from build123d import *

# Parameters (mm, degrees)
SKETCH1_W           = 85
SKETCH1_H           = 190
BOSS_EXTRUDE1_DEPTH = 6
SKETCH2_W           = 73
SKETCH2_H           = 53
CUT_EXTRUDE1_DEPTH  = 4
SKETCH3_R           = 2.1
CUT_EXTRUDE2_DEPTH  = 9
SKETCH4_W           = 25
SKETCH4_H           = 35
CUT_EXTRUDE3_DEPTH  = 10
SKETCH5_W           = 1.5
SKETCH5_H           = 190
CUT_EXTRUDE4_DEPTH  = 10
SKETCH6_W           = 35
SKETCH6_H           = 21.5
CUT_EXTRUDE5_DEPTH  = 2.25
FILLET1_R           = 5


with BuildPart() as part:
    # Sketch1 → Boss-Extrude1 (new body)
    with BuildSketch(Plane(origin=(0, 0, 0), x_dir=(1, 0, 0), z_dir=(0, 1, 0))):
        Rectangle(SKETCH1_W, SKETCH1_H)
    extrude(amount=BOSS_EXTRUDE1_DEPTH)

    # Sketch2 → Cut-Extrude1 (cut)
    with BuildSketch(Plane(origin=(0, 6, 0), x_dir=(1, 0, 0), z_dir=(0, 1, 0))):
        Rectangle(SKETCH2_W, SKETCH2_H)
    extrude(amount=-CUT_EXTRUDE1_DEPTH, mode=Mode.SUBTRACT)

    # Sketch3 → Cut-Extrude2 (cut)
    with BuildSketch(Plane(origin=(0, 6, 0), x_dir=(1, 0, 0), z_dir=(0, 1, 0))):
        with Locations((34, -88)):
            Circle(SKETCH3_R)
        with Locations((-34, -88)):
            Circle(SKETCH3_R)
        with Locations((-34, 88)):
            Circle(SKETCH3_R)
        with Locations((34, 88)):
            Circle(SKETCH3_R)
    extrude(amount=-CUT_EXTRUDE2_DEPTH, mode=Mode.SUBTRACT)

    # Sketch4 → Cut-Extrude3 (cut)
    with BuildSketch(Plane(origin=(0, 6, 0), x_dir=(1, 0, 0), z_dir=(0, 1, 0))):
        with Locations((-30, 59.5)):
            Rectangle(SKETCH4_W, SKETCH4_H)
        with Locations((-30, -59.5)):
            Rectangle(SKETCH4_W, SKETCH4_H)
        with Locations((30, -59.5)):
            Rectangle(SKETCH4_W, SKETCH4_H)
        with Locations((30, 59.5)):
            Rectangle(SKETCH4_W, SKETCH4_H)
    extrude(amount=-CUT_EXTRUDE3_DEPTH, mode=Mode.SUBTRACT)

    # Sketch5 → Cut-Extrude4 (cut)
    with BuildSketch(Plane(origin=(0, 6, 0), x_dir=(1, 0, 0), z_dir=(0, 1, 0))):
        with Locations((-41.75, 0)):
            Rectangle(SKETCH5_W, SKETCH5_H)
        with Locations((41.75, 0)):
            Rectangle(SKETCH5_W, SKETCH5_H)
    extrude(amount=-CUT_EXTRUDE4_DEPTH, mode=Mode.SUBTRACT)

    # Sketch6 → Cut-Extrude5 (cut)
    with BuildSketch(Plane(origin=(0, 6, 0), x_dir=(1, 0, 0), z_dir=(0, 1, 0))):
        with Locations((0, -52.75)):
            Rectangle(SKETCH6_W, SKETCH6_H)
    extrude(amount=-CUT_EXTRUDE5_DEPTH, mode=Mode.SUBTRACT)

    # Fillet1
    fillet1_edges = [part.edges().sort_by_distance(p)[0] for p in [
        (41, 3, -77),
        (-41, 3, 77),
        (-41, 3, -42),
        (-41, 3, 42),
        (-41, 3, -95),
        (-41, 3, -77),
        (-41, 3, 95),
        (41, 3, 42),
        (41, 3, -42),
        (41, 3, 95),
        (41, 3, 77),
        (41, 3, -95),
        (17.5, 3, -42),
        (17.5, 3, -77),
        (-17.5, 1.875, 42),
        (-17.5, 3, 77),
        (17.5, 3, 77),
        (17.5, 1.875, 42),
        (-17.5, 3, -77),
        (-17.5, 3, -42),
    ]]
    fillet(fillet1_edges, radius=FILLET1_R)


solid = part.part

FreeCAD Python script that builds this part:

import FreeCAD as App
import Part
import Sketcher


def edges_at(feature, points):
    """Names of the edges that pass closest to the given points."""
    edges = feature.Shape.Edges
    near = lambda p: min(range(len(edges)), key=lambda i: edges[i].distToShape(Part.Vertex(*p))[0])
    return sorted({f"Edge{near(p) + 1}" for p in points})

doc = App.newDocument("Part")
params = doc.addObject("Spreadsheet::Sheet", "Params")
for row, (alias, value) in enumerate([
    ("sketch1_width", "85 mm"),
    ("sketch1_height", "190 mm"),
    ("pad1_length", "6 mm"),
    ("sketch2_width", "73 mm"),
    ("sketch2_height", "53 mm"),
    ("pocket1_length", "4 mm"),
    ("sketch3_diameter", "4.2 mm"),
    ("pocket2_length", "9 mm"),
    ("sketch4_width", "25 mm"),
    ("sketch4_height", "35 mm"),
    ("pocket3_length", "10 mm"),
    ("sketch5_height", "190 mm"),
    ("sketch5_width", "1.5 mm"),
    ("pocket4_length", "10 mm"),
    ("sketch6_width", "35 mm"),
    ("sketch6_height", "21.5 mm"),
    ("pocket5_length", "2.25 mm"),
    ("fillet_radius", "5 mm"),
], start=1):
    params.set(f"A{row}", alias)
    params.set(f"B{row}", "=" + value)
    params.setAlias(f"B{row}", alias)

body = doc.addObject("PartDesign::Body", "Body")

sketch1 = body.newObject("Sketcher::SketchObject", "Sketch")
sketch1.AttachmentSupport = (doc.getObject("XZ_Plane"), [""])
sketch1.MapMode = "FlatFace"
sketch1.addGeometry([
    Part.LineSegment(App.Vector(-42, -95, 0), App.Vector(-42, 95, 0)),
    Part.LineSegment(App.Vector(-42, 95, 0), App.Vector(42, 95, 0)),
    Part.LineSegment(App.Vector(42, 95, 0), App.Vector(42, -95, 0)),
    Part.LineSegment(App.Vector(42, -95, 0), App.Vector(-42, -95, 0)),
], False)
sketch1.addConstraint([
    Sketcher.Constraint("Coincident", 0, 2, 1, 1),
    Sketcher.Constraint("Coincident", 1, 2, 2, 1),
    Sketcher.Constraint("Coincident", 2, 2, 3, 1),
    Sketcher.Constraint("Coincident", 3, 2, 0, 1),
    Sketcher.Constraint("Vertical", 0),
    Sketcher.Constraint("Horizontal", 1),
    Sketcher.Constraint("Vertical", 2),
    Sketcher.Constraint("Horizontal", 3),
    Sketcher.Constraint("Symmetric", 0, 2, 2, 2, -1, 1),
    Sketcher.Constraint("DistanceX", 1, 1, 1, 2, 85.0),
    Sketcher.Constraint("DistanceY", 0, 1, 0, 2, 190.0),
])
sketch1.setExpression("Constraints[9]", "Params.sketch1_width")
sketch1.setExpression("Constraints[10]", "Params.sketch1_height")
pad1 = body.newObject("PartDesign::Pad", "Pad")
pad1.Profile = sketch1
pad1.setExpression("Length", "Params.pad1_length")
pad1.Reversed = True

sketch2 = body.newObject("Sketcher::SketchObject", "Sketch001")
sketch2.AttachmentSupport = (doc.getObject("XZ_Plane"), [""])
sketch2.MapMode = "FlatFace"
sketch2.AttachmentOffset = App.Placement(App.Vector(0, 0, -6), App.Rotation())
sketch2.addGeometry([
    Part.LineSegment(App.Vector(-36, -26, 0), App.Vector(-36, 26, 0)),
    Part.LineSegment(App.Vector(-36, 26, 0), App.Vector(36, 26, 0)),
    Part.LineSegment(App.Vector(36, 26, 0), App.Vector(36, -26, 0)),
    Part.LineSegment(App.Vector(36, -26, 0), App.Vector(-36, -26, 0)),
], False)
sketch2.addConstraint([
    Sketcher.Constraint("Coincident", 0, 2, 1, 1),
    Sketcher.Constraint("Coincident", 1, 2, 2, 1),
    Sketcher.Constraint("Coincident", 2, 2, 3, 1),
    Sketcher.Constraint("Coincident", 3, 2, 0, 1),
    Sketcher.Constraint("Vertical", 0),
    Sketcher.Constraint("Horizontal", 1),
    Sketcher.Constraint("Vertical", 2),
    Sketcher.Constraint("Horizontal", 3),
    Sketcher.Constraint("Symmetric", 0, 2, 2, 2, -1, 1),
    Sketcher.Constraint("DistanceX", 1, 1, 1, 2, 73.0),
    Sketcher.Constraint("DistanceY", 0, 1, 0, 2, 53.0),
])
sketch2.setExpression("Constraints[9]", "Params.sketch2_width")
sketch2.setExpression("Constraints[10]", "Params.sketch2_height")
pocket1 = body.newObject("PartDesign::Pocket", "Pocket")
pocket1.Profile = sketch2
pocket1.setExpression("Length", "Params.pocket1_length")
pocket1.Reversed = True

sketch3 = body.newObject("Sketcher::SketchObject", "Sketch002")
sketch3.AttachmentSupport = (doc.getObject("XZ_Plane"), [""])
sketch3.MapMode = "FlatFace"
sketch3.AttachmentOffset = App.Placement(App.Vector(0, 0, -6), App.Rotation())
sketch3.addGeometry([
    Part.Circle(App.Vector(34, 88, 0), App.Vector(0, 0, 1), 2.1),
    Part.Circle(App.Vector(-34, 88, 0), App.Vector(0, 0, 1), 2.1),
    Part.Circle(App.Vector(-34, -88, 0), App.Vector(0, 0, 1), 2.1),
    Part.Circle(App.Vector(34, -88, 0), App.Vector(0, 0, 1), 2.1),
], False)
sketch3.addConstraint([
    Sketcher.Constraint("Equal", 0, 1),
    Sketcher.Constraint("Equal", 1, 2),
    Sketcher.Constraint("Equal", 2, 3),
    Sketcher.Constraint("Symmetric", 0, 3, 2, 3, -1, 1),
    Sketcher.Constraint("Symmetric", 1, 3, 3, 3, -1, 1),
    Sketcher.Constraint("Symmetric", 0, 3, 1, 3, -2),
    Sketcher.Constraint("Diameter", 0, 4.2),
    Sketcher.Constraint("DistanceX", -1, 1, 0, 3, 34.0),
    Sketcher.Constraint("DistanceY", -1, 1, 0, 3, 88.0),
])
sketch3.setExpression("Constraints[6]", "Params.sketch3_diameter")
pocket2 = body.newObject("PartDesign::Pocket", "Pocket001")
pocket2.Profile = sketch3
pocket2.setExpression("Length", "Params.pocket2_length")
pocket2.Reversed = True

sketch4 = body.newObject("Sketcher::SketchObject", "Sketch003")
sketch4.AttachmentSupport = (doc.getObject("XZ_Plane"), [""])
sketch4.MapMode = "FlatFace"
sketch4.AttachmentOffset = App.Placement(App.Vector(0, 0, -6), App.Rotation())
sketch4.addGeometry([
    Part.LineSegment(App.Vector(-42, -77, 0), App.Vector(-42, -42, 0)),
    Part.LineSegment(App.Vector(-42, -42, 0), App.Vector(-18, -42, 0)),
    Part.LineSegment(App.Vector(-18, -42, 0), App.Vector(-18, -77, 0)),
    Part.LineSegment(App.Vector(-18, -77, 0), App.Vector(-42, -77, 0)),
    Part.LineSegment(App.Vector(-42, 42, 0), App.Vector(-42, 77, 0)),
    Part.LineSegment(App.Vector(-42, 77, 0), App.Vector(-18, 77, 0)),
    Part.LineSegment(App.Vector(-18, 77, 0), App.Vector(-18, 42, 0)),
    Part.LineSegment(App.Vector(-18, 42, 0), App.Vector(-42, 42, 0)),
    Part.LineSegment(App.Vector(18, 42, 0), App.Vector(18, 77, 0)),
    Part.LineSegment(App.Vector(18, 77, 0), App.Vector(42, 77, 0)),
    Part.LineSegment(App.Vector(42, 77, 0), App.Vector(42, 42, 0)),
    Part.LineSegment(App.Vector(42, 42, 0), App.Vector(18, 42, 0)),
    Part.LineSegment(App.Vector(18, -77, 0), App.Vector(18, -42, 0)),
    Part.LineSegment(App.Vector(18, -42, 0), App.Vector(42, -42, 0)),
    Part.LineSegment(App.Vector(42, -42, 0), App.Vector(42, -77, 0)),
    Part.LineSegment(App.Vector(42, -77, 0), App.Vector(18, -77, 0)),
], False)
sketch4.addConstraint([
    Sketcher.Constraint("Coincident", 0, 2, 1, 1),
    Sketcher.Constraint("Coincident", 1, 2, 2, 1),
    Sketcher.Constraint("Coincident", 2, 2, 3, 1),
    Sketcher.Constraint("Coincident", 3, 2, 0, 1),
    Sketcher.Constraint("Coincident", 4, 2, 5, 1),
    Sketcher.Constraint("Coincident", 5, 2, 6, 1),
    Sketcher.Constraint("Coincident", 6, 2, 7, 1),
    Sketcher.Constraint("Coincident", 7, 2, 4, 1),
    Sketcher.Constraint("Coincident", 8, 2, 9, 1),
    Sketcher.Constraint("Coincident", 9, 2, 10, 1),
    Sketcher.Constraint("Coincident", 10, 2, 11, 1),
    Sketcher.Constraint("Coincident", 11, 2, 8, 1),
    Sketcher.Constraint("Coincident", 12, 2, 13, 1),
    Sketcher.Constraint("Coincident", 13, 2, 14, 1),
    Sketcher.Constraint("Coincident", 14, 2, 15, 1),
    Sketcher.Constraint("Coincident", 15, 2, 12, 1),
    Sketcher.Constraint("Vertical", 0),
    Sketcher.Constraint("Horizontal", 1),
    Sketcher.Constraint("Vertical", 2),
    Sketcher.Constraint("Horizontal", 3),
    Sketcher.Constraint("Vertical", 4),
    Sketcher.Constraint("Horizontal", 5),
    Sketcher.Constraint("Vertical", 6),
    Sketcher.Constraint("Horizontal", 7),
    Sketcher.Constraint("Vertical", 8),
    Sketcher.Constraint("Horizontal", 9),
    Sketcher.Constraint("Vertical", 10),
    Sketcher.Constraint("Horizontal", 11),
    Sketcher.Constraint("Vertical", 12),
    Sketcher.Constraint("Horizontal", 13),
    Sketcher.Constraint("Vertical", 14),
    Sketcher.Constraint("Horizontal", 15),
    Sketcher.Constraint("Symmetric", 2, 2, 8, 2, -1, 1),
    Sketcher.Constraint("Symmetric", 0, 2, 10, 2, -1, 1),
    Sketcher.Constraint("Symmetric", 6, 2, 12, 2, -1, 1),
    Sketcher.Constraint("Symmetric", 4, 2, 14, 2, -1, 1),
    Sketcher.Constraint("Symmetric", 5, 2, 8, 2, -2),
    Sketcher.Constraint("Symmetric", 7, 2, 10, 2, -2),
    Sketcher.Constraint("DistanceX", 1, 1, 1, 2, 25.0),
    Sketcher.Constraint("DistanceY", 0, 1, 0, 2, 35.0),
    Sketcher.Constraint("DistanceY", 0, 2, -1, 1, 42.0),
    Sketcher.Constraint("DistanceX", 5, 2, 8, 2, 35.0),
])
sketch4.setExpression("Constraints[38]", "Params.sketch4_width")
sketch4.setExpression("Constraints[39]", "Params.sketch4_height")
pocket3 = body.newObject("PartDesign::Pocket", "Pocket002")
pocket3.Profile = sketch4
pocket3.setExpression("Length", "Params.pocket3_length")
pocket3.Reversed = True

sketch5 = body.newObject("Sketcher::SketchObject", "Sketch004")
sketch5.AttachmentSupport = (doc.getObject("XZ_Plane"), [""])
sketch5.MapMode = "FlatFace"
sketch5.AttachmentOffset = App.Placement(App.Vector(0, 0, -6), App.Rotation())
sketch5.addGeometry([
    Part.LineSegment(App.Vector(-42.5, -95, 0), App.Vector(-42.5, 95, 0)),
    Part.LineSegment(App.Vector(-42.5, 95, 0), App.Vector(-41, 95, 0)),
    Part.LineSegment(App.Vector(-41, 95, 0), App.Vector(-41, -95, 0)),
    Part.LineSegment(App.Vector(-41, -95, 0), App.Vector(-42.5, -95, 0)),
    Part.LineSegment(App.Vector(41, -95, 0), App.Vector(41, 95, 0)),
    Part.LineSegment(App.Vector(41, 95, 0), App.Vector(42.5, 95, 0)),
    Part.LineSegment(App.Vector(42.5, 95, 0), App.Vector(42.5, -95, 0)),
    Part.LineSegment(App.Vector(42.5, -95, 0), App.Vector(41, -95, 0)),
], False)
sketch5.addConstraint([
    Sketcher.Constraint("Coincident", 0, 2, 1, 1),
    Sketcher.Constraint("Coincident", 1, 2, 2, 1),
    Sketcher.Constraint("Coincident", 2, 2, 3, 1),
    Sketcher.Constraint("Coincident", 3, 2, 0, 1),
    Sketcher.Constraint("Coincident", 4, 2, 5, 1),
    Sketcher.Constraint("Coincident", 5, 2, 6, 1),
    Sketcher.Constraint("Coincident", 6, 2, 7, 1),
    Sketcher.Constraint("Coincident", 7, 2, 4, 1),
    Sketcher.Constraint("Vertical", 0),
    Sketcher.Constraint("Horizontal", 1),
    Sketcher.Constraint("Vertical", 2),
    Sketcher.Constraint("Horizontal", 3),
    Sketcher.Constraint("Vertical", 4),
    Sketcher.Constraint("Horizontal", 5),
    Sketcher.Constraint("Vertical", 6),
    Sketcher.Constraint("Horizontal", 7),
    Sketcher.Constraint("Symmetric", 2, 2, 4, 2, -1, 1),
    Sketcher.Constraint("Symmetric", 0, 2, 6, 2, -1, 1),
    Sketcher.Constraint("Horizontal", 1, 2, 4, 2),
    Sketcher.Constraint("DistanceY", 0, 1, 0, 2, 190.0),
    Sketcher.Constraint("DistanceX", 1, 1, 1, 2, 1.5),
    Sketcher.Constraint("DistanceX", 1, 2, -1, 1, 41.0),
])
sketch5.setExpression("Constraints[19]", "Params.sketch5_height")
sketch5.setExpression("Constraints[20]", "Params.sketch5_width")
pocket4 = body.newObject("PartDesign::Pocket", "Pocket003")
pocket4.Profile = sketch5
pocket4.setExpression("Length", "Params.pocket4_length")
pocket4.Reversed = True

sketch6 = body.newObject("Sketcher::SketchObject", "Sketch005")
sketch6.AttachmentSupport = (doc.getObject("XZ_Plane"), [""])
sketch6.MapMode = "FlatFace"
sketch6.AttachmentOffset = App.Placement(App.Vector(0, 0, -6), App.Rotation())
sketch6.addGeometry([
    Part.LineSegment(App.Vector(-18, 42, 0), App.Vector(-18, 64, 0)),
    Part.LineSegment(App.Vector(-18, 64, 0), App.Vector(18, 64, 0)),
    Part.LineSegment(App.Vector(18, 64, 0), App.Vector(18, 42, 0)),
    Part.LineSegment(App.Vector(18, 42, 0), App.Vector(-18, 42, 0)),
], False)
sketch6.addConstraint([
    Sketcher.Constraint("Coincident", 0, 2, 1, 1),
    Sketcher.Constraint("Coincident", 1, 2, 2, 1),
    Sketcher.Constraint("Coincident", 2, 2, 3, 1),
    Sketcher.Constraint("Coincident", 3, 2, 0, 1),
    Sketcher.Constraint("Vertical", 0),
    Sketcher.Constraint("Horizontal", 1),
    Sketcher.Constraint("Vertical", 2),
    Sketcher.Constraint("Horizontal", 3),
    Sketcher.Constraint("DistanceX", 1, 1, 1, 2, 35.0),
    Sketcher.Constraint("DistanceY", 0, 1, 0, 2, 21.5),
    Sketcher.Constraint("DistanceY", -1, 1, 2, 2, 42.0),
    Sketcher.Constraint("DistanceX", 0, 2, -1, 1, 17.5),
])
sketch6.setExpression("Constraints[8]", "Params.sketch6_width")
sketch6.setExpression("Constraints[9]", "Params.sketch6_height")
pocket5 = body.newObject("PartDesign::Pocket", "Pocket004")
pocket5.Profile = sketch6
pocket5.setExpression("Length", "Params.pocket5_length")
pocket5.Reversed = True
doc.recompute()

fillet = body.newObject("PartDesign::Fillet", "Fillet")
fillet.Base = (pocket5, edges_at(pocket5, [
    (41, 3, -77),
    (-41, 3, 77),
    (-41, 3, -42),
    (-41, 3, 42),
    (-41, 3, -95),
    (-41, 3, -77),
    (-41, 3, 95),
    (41, 3, 42),
    (41, 3, -42),
    (41, 3, 95),
    (41, 3, 77),
    (41, 3, -95),
    (17.5, 3, -42),
    (17.5, 3, -77),
    (-17.5, 1.875, 42),
    (-17.5, 3, 77),
    (17.5, 3, 77),
    (17.5, 1.875, 42),
    (-17.5, 3, -77),
    (-17.5, 3, -42),
]))
fillet.setExpression("Radius", "Params.fillet_radius")

doc.recompute()
